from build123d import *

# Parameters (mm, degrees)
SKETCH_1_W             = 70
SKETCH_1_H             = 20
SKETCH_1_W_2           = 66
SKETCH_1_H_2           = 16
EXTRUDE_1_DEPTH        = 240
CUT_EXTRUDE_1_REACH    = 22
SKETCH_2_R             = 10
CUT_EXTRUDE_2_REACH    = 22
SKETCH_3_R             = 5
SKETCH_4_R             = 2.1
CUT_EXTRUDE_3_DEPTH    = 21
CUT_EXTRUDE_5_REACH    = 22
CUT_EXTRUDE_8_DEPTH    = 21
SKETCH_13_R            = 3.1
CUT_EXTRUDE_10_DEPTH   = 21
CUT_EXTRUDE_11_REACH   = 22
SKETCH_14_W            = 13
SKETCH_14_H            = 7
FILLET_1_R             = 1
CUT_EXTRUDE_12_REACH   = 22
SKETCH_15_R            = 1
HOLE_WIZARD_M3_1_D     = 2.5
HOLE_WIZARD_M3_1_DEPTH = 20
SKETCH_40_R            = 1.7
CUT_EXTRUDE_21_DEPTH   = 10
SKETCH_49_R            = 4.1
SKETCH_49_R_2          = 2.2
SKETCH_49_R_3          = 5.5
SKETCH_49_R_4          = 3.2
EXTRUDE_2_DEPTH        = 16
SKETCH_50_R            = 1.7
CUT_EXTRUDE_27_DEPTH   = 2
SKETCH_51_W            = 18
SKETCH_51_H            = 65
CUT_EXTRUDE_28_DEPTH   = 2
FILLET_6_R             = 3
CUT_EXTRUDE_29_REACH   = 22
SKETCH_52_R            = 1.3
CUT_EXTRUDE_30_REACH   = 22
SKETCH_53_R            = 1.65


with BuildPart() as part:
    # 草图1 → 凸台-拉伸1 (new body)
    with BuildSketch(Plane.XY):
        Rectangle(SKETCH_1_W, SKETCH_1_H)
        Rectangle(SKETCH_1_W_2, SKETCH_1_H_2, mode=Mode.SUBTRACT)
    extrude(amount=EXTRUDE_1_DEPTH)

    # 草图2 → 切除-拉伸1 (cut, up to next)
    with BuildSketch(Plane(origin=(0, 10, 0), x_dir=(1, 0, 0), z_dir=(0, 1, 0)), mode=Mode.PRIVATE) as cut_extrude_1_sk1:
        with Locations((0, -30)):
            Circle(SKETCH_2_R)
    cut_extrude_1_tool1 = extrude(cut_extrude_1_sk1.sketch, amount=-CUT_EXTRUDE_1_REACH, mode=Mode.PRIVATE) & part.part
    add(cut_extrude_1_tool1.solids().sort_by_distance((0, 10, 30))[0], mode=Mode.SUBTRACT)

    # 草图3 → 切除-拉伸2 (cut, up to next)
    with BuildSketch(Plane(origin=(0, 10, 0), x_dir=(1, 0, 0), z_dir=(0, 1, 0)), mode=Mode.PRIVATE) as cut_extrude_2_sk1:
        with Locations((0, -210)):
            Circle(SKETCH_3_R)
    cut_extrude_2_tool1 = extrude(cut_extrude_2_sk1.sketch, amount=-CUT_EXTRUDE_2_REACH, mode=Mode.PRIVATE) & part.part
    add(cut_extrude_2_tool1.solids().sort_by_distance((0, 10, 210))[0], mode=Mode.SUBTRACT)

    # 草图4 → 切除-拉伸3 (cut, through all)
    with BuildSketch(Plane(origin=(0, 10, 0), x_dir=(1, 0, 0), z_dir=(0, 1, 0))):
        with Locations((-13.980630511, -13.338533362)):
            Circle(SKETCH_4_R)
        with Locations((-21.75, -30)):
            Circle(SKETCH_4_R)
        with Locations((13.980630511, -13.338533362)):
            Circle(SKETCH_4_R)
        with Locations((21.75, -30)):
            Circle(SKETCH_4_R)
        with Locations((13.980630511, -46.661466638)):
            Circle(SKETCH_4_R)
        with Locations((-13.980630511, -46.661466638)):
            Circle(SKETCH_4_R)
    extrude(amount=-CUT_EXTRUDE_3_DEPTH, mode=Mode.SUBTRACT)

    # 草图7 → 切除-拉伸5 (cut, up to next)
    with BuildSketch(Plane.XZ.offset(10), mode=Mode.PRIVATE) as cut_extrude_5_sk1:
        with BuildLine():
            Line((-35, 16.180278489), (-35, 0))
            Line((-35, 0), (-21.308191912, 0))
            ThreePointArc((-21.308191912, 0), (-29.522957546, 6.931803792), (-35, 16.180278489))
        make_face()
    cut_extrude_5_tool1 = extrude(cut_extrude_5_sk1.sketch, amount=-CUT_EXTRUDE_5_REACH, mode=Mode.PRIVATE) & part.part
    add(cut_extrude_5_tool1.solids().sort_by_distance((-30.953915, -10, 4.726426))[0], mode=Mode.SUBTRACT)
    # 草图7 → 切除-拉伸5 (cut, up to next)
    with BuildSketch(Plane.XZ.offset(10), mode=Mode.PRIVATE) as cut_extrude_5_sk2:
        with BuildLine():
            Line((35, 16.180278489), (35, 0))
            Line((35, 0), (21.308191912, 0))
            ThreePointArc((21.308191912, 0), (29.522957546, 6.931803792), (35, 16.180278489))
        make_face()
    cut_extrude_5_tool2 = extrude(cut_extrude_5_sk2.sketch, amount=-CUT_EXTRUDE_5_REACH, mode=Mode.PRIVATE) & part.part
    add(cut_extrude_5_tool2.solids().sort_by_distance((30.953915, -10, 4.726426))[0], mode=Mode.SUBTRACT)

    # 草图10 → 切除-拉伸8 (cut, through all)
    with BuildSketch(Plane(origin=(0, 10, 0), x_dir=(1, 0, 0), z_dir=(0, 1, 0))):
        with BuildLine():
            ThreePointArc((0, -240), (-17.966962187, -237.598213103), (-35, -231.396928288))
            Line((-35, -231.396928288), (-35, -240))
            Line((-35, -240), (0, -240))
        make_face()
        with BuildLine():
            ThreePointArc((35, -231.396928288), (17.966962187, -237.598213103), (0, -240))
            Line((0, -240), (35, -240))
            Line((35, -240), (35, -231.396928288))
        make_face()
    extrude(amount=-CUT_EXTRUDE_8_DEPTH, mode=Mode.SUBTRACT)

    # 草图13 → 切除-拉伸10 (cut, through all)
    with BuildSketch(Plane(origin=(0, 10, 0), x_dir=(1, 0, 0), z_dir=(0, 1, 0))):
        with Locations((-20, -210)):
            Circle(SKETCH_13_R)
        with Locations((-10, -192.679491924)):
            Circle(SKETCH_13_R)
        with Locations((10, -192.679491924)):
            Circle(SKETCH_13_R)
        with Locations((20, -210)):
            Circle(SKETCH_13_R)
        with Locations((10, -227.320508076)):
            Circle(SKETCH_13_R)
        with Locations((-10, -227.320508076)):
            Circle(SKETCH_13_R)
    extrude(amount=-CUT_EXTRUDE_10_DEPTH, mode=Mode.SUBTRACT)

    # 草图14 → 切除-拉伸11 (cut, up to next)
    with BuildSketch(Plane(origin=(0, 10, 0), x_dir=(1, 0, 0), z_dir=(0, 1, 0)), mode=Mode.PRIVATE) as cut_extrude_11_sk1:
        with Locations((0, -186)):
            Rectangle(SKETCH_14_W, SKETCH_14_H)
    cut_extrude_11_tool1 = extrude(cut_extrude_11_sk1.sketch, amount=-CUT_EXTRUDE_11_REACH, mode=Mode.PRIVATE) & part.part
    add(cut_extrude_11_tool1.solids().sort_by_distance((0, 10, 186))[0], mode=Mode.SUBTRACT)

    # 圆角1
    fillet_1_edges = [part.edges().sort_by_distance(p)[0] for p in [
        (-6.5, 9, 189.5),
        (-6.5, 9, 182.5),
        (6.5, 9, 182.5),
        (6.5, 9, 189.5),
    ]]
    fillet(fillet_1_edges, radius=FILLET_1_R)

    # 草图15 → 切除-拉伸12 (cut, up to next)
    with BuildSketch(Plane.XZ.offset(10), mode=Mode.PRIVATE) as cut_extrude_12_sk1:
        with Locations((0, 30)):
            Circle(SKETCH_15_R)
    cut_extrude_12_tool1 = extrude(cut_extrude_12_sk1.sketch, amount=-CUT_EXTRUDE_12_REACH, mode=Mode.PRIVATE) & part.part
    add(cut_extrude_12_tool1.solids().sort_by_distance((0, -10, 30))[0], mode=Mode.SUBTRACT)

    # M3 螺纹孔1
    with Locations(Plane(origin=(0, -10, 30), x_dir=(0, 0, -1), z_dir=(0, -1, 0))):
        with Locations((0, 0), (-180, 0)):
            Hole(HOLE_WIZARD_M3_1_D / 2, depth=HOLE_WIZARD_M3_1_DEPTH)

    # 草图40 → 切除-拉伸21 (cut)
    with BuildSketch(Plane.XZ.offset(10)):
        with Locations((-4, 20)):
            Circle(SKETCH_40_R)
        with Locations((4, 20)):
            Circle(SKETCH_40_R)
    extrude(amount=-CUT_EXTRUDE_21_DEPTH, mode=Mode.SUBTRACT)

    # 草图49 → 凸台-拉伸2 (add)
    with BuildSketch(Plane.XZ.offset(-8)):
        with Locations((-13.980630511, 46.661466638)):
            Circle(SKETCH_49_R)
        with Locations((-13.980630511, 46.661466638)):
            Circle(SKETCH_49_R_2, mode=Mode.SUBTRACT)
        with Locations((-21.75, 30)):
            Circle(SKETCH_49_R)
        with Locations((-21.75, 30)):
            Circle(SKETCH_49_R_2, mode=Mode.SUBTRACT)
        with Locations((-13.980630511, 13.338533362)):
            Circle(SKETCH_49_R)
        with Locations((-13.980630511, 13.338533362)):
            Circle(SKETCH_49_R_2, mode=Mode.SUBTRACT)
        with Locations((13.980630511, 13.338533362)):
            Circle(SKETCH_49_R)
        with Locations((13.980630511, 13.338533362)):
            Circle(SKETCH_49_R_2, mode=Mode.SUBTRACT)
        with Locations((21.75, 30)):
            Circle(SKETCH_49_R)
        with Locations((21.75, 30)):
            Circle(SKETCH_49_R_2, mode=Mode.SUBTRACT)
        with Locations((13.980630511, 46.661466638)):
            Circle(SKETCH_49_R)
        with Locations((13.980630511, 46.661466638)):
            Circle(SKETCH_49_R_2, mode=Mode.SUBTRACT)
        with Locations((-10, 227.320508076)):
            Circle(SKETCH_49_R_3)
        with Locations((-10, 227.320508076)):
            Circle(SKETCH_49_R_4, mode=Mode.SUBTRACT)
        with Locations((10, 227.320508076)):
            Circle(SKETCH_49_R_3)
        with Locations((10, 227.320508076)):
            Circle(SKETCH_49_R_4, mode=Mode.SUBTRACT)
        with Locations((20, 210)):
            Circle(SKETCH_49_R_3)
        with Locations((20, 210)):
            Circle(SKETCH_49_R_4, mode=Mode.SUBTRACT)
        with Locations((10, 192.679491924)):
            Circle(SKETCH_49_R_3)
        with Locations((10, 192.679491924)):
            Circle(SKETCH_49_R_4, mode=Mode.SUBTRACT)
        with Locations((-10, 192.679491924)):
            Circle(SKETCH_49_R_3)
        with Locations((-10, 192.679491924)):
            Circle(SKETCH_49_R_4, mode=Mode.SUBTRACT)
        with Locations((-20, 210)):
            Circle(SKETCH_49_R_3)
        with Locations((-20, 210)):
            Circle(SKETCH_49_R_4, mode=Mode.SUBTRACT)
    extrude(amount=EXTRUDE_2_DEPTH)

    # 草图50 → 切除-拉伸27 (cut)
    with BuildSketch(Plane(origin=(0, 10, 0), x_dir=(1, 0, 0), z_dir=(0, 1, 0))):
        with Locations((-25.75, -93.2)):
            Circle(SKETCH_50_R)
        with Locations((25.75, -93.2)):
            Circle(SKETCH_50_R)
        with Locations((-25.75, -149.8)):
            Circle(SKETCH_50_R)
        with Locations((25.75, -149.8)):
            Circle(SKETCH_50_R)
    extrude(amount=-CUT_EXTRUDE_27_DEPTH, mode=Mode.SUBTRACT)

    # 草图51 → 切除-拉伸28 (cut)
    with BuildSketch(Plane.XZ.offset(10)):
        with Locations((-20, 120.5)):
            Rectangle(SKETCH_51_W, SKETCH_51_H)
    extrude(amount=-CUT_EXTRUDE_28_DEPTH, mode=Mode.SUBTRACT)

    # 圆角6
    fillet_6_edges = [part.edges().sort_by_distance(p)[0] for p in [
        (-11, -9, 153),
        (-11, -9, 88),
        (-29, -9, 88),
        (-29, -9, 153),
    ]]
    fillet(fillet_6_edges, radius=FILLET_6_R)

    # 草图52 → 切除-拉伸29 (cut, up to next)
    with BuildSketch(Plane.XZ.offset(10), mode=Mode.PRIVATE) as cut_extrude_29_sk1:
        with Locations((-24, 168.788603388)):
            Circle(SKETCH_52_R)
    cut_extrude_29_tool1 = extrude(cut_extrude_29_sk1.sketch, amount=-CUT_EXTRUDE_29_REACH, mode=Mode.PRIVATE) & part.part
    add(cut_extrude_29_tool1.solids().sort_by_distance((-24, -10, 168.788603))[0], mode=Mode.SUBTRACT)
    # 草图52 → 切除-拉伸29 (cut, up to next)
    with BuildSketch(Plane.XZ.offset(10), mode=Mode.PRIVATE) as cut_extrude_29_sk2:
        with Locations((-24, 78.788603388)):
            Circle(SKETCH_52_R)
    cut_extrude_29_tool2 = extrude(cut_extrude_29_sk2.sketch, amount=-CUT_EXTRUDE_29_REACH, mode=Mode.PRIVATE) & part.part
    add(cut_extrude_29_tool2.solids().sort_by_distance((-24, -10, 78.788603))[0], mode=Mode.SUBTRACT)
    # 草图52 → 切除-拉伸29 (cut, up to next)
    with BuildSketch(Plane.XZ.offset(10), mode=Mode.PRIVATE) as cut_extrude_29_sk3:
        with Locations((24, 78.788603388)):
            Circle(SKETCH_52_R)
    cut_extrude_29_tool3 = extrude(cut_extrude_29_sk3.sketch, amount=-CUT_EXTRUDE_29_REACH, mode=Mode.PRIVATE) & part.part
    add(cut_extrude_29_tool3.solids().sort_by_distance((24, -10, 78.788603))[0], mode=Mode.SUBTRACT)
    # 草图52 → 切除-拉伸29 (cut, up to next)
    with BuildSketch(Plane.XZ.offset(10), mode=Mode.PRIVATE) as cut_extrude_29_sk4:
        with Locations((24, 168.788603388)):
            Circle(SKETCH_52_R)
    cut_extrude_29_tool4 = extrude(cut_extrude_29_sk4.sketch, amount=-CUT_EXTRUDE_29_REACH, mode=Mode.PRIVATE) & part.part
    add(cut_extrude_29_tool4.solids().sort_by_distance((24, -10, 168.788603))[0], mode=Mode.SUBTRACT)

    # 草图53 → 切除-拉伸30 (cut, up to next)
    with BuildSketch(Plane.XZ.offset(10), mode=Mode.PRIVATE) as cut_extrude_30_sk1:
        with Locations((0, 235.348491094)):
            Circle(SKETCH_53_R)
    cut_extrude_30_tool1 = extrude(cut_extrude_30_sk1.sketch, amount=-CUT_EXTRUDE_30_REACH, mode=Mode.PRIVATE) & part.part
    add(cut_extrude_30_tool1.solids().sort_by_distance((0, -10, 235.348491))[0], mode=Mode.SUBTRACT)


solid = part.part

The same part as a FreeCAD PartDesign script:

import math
import FreeCAD as App
import Part
import Sketcher
from FreeCAD import Vector
Q = App.Units.Quantity


def edges_at(feature, points):
    """Names of the edges that pass closest to the given points."""
    edges = feature.Shape.Edges
    near = lambda p: min(range(len(edges)), key=lambda i: edges[i].distToShape(Part.Vertex(*p))[0])
    return sorted({f"Edge{near(p) + 1}" for p in points})

doc = App.newDocument("Part")
body = doc.addObject("PartDesign::Body", "Body")

# Sketch on XY plane
sketch1 = body.newObject("Sketcher::SketchObject", "Sketch")
sketch1.AttachmentSupport = (doc.getObject("XY_Plane"), [""])
sketch1.MapMode = "FlatFace"
sketch1.addGeometry(Part.LineSegment(Vector(-35, 10, 0), Vector(-35, -10, 0)), False)
sketch1.addGeometry(Part.LineSegment(Vector(-35, -10, 0), Vector(35, -10, 0)), False)
sketch1.addGeometry(Part.LineSegment(Vector(35, -10, 0), Vector(35, 10, 0)), False)
sketch1.addGeometry(Part.LineSegment(Vector(35, 10, 0), Vector(-35, 10, 0)), False)
sketch1.addGeometry(Part.LineSegment(Vector(33, -8, 0), Vector(-33, -8, 0)), False)
sketch1.addGeometry(Part.LineSegment(Vector(-33, -8, 0), Vector(-33, 8, 0)), False)
sketch1.addGeometry(Part.LineSegment(Vector(-33, 8, 0), Vector(33, 8, 0)), False)
sketch1.addGeometry(Part.LineSegment(Vector(33, 8, 0), Vector(33, -8, 0)), False)
sketch1.addConstraint(Sketcher.Constraint("Coincident", 0, 2, 1, 1))
sketch1.addConstraint(Sketcher.Constraint("Coincident", 1, 2, 2, 1))
sketch1.addConstraint(Sketcher.Constraint("Coincident", 2, 2, 3, 1))
sketch1.addConstraint(Sketcher.Constraint("Coincident", 3, 2, 0, 1))
sketch1.addConstraint(Sketcher.Constraint("Coincident", 4, 2, 5, 1))
sketch1.addConstraint(Sketcher.Constraint("Coincident", 5, 2, 6, 1))
sketch1.addConstraint(Sketcher.Constraint("Coincident", 6, 2, 7, 1))
sketch1.addConstraint(Sketcher.Constraint("Coincident", 7, 2, 4, 1))
sketch1.addConstraint(Sketcher.Constraint("Vertical", 0))
sketch1.addConstraint(Sketcher.Constraint("Horizontal", 1))
sketch1.addConstraint(Sketcher.Constraint("Vertical", 2))
sketch1.addConstraint(Sketcher.Constraint("Horizontal", 3))
sketch1.addConstraint(Sketcher.Constraint("Horizontal", 4))
sketch1.addConstraint(Sketcher.Constraint("Vertical", 5))
sketch1.addConstraint(Sketcher.Constraint("Horizontal", 6))
sketch1.addConstraint(Sketcher.Constraint("Vertical", 7))
sketch1.addConstraint(Sketcher.Constraint("Symmetric", 0, 2, 2, 2, -1, 1))
sketch1.addConstraint(Sketcher.Constraint("Symmetric", 4, 2, 6, 2, -1, 1))
sketch1.addConstraint(Sketcher.Constraint("DistanceX", 1, 1, 1, 2, Q("70 mm")))
sketch1.addConstraint(Sketcher.Constraint("DistanceX", 4, 2, 4, 1, Q("66 mm")))
sketch1.addConstraint(Sketcher.Constraint("DistanceY", 0, 2, 0, 1, Q("20 mm")))
sketch1.addConstraint(Sketcher.Constraint("DistanceY", 5, 1, 5, 2, Q("16 mm")))
pad1 = body.newObject("PartDesign::Pad", "Pad")
pad1.Profile = sketch1
pad1.Length = 240

# Sketch on XZ plane
sketch2 = body.newObject("Sketcher::SketchObject", "Sketch001")
sketch2.AttachmentSupport = (doc.getObject("XZ_Plane"), [""])
sketch2.MapMode = "FlatFace"
sketch2.AttachmentOffset = App.Placement(Vector(0, 0, -10), App.Rotation())
sketch2.addGeometry(Part.Circle(Vector(0, 30, 0), Vector(0, 0, 1), 10), False)
sketch2.addConstraint(Sketcher.Constraint("PointOnObject", 0, 3, -2))
sketch2.addConstraint(Sketcher.Constraint("Diameter", 0, Q("20 mm")))
sketch2.addConstraint(Sketcher.Constraint("DistanceY", -1, 1, 0, 3, Q("30 mm")))
pocket1 = body.newObject("PartDesign::Pocket", "Pocket")
pocket1.Profile = sketch2
pocket1.Type = "UpToFirst"
pocket1.Reversed = True

# Sketch on XZ plane
sketch3 = body.newObject("Sketcher::SketchObject", "Sketch002")
sketch3.AttachmentSupport = (doc.getObject("XZ_Plane"), [""])
sketch3.MapMode = "FlatFace"
sketch3.AttachmentOffset = App.Placement(Vector(0, 0, -10), App.Rotation())
sketch3.addGeometry(Part.Circle(Vector(0, 210, 0), Vector(0, 0, 1), 5), False)
sketch3.addConstraint(Sketcher.Constraint("PointOnObject", 0, 3, -2))
sketch3.addConstraint(Sketcher.Constraint("Diameter", 0, Q("10 mm")))
sketch3.addConstraint(Sketcher.Constraint("DistanceY", -1, 1, 0, 3, Q("210 mm")))
pocket2 = body.newObject("PartDesign::Pocket", "Pocket001")
pocket2.Profile = sketch3
pocket2.Type = "UpToFirst"
pocket2.Reversed = True

# Sketch on XZ plane
sketch4 = body.newObject("Sketcher::SketchObject", "Sketch003")
sketch4.AttachmentSupport = (doc.getObject("XZ_Plane"), [""])
sketch4.MapMode = "FlatFace"
sketch4.AttachmentOffset = App.Placement(Vector(0, 0, -10), App.Rotation())
sketch4.addGeometry(Part.Circle(Vector(-14, 13.3, 0), Vector(0, 0, 1), 2.1), False)
sketch4.addGeometry(Part.Circle(Vector(-21.8, 30, 0), Vector(0, 0, 1), 2.1), False)
sketch4.addGeometry(Part.Circle(Vector(14, 13.3, 0), Vector(0, 0, 1), 2.1), False)
sketch4.addGeometry(Part.Circle(Vector(21.8, 30, 0), Vector(0, 0, 1), 2.1), False)
sketch4.addGeometry(Part.Circle(Vector(14, 46.7, 0), Vector(0, 0, 1), 2.1), False)
sketch4.addGeometry(Part.Circle(Vector(-14, 46.7, 0), Vector(0, 0, 1), 2.1), False)
sketch4.addConstraint(Sketcher.Constraint("Equal", 0, 1))
sketch4.addConstraint(Sketcher.Constraint("Equal", 1, 2))
sketch4.addConstraint(Sketcher.Constraint("Equal", 2, 3))
sketch4.addConstraint(Sketcher.Constraint("Equal", 3, 4))
sketch4.addConstraint(Sketcher.Constraint("Equal", 4, 5))
sketch4.addConstraint(Sketcher.Constraint("Symmetric", 0, 3, 2, 3, -2))
sketch4.addConstraint(Sketcher.Constraint("Symmetric", 1, 3, 3, 3, -2))
sketch4.addConstraint(Sketcher.Constraint("Symmetric", 4, 3, 5, 3, -2))
sketch4.addConstraint(Sketcher.Constraint("Vertical", 2, 3, 4, 3))
sketch4.addConstraint(Sketcher.Constraint("Diameter", 0, Q("4.2 mm")))
sketch4.addConstraint(Sketcher.Constraint("DistanceY", -1, 1, 1, 3, Q("30 mm")))
sketch4.addConstraint(Sketcher.Constraint("DistanceX", 1, 3, 3, 3, Q("43.5 mm")))
sketch4.addConstraint(Sketcher.Constraint("DistanceX", 0, 3, -1, 1, Q("13.980631 mm")))
sketch4.addConstraint(Sketcher.Constraint("DistanceY", -1, 1, 0, 3, Q("13.338533 mm")))
sketch4.addConstraint(Sketcher.Constraint("DistanceY", -1, 1, 4, 3, Q("46.661467 mm")))
pocket3 = body.newObject("PartDesign::Pocket", "Pocket002")
pocket3.Profile = sketch4
pocket3.Type = "ThroughAll"
pocket3.Reversed = True

# Sketch on XZ plane
sketch5 = body.newObject("Sketcher::SketchObject", "Sketch004")
sketch5.AttachmentSupport = (doc.getObject("XZ_Plane"), [""])
sketch5.MapMode = "FlatFace"
sketch5.AttachmentOffset = App.Placement(Vector(0, 0, 10), App.Rotation())
sketch5.addGeometry(Part.LineSegment(Vector(-35, 16, 0), Vector(-35, 0, 0)), False)
sketch5.addGeometry(Part.LineSegment(Vector(-35, 0, 0), Vector(-21, 0, 0)), False)
sketch5.addGeometry(Part.ArcOfCircle(Part.Circle(Vector(-5, 28, 0), Vector(0, 0, 1), 32), math.radians(-159), math.radians(-121)), False)
sketch5.addConstraint(Sketcher.Constraint("Coincident", 0, 2, 1, 1))
sketch5.addConstraint(Sketcher.Constraint("Coincident", 1, 2, 2, 2))
sketch5.addConstraint(Sketcher.Constraint("Coincident", 2, 1, 0, 1))
sketch5.addConstraint(Sketcher.Constraint("Vertical", 0))
sketch5.addConstraint(Sketcher.Constraint("Horizontal", 1))
sketch5.addConstraint(Sketcher.Constraint("PointOnObject", 0, 2, -1))
sketch5.addConstraint(Sketcher.Constraint("DistanceX", 0, 2, -1, 1, Q("35 mm")))
sketch5.addConstraint(Sketcher.Constraint("Radius", 2, Q("32.214213 mm")))
sketch5.addConstraint(Sketcher.Constraint("DistanceX", 1, 1, 1, 2, Q("13.691808 mm")))
sketch5.addConstraint(Sketcher.Constraint("DistanceY", 0, 2, 0, 1, Q("16.180278 mm")))
pocket4 = body.newObject("PartDesign::Pocket", "Pocket003")
pocket4.Profile = sketch5
pocket4.Length = 20

# Sketch on XZ plane
sketch6 = body.newObject("Sketcher::SketchObject", "Sketch005")
sketch6.AttachmentSupport = (doc.getObject("XZ_Plane"), [""])
sketch6.MapMode = "FlatFace"
sketch6.AttachmentOffset = App.Placement(Vector(0, 0, 10), App.Rotation())
sketch6.addGeometry(Part.LineSegment(Vector(35, 0, 0), Vector(35, 16, 0)), False)
sketch6.addGeometry(Part.ArcOfCircle(Part.Circle(Vector(5, 28, 0), Vector(0, 0, 1), 32), math.radians(-59), math.radians(-21)), False)
sketch6.addGeometry(Part.LineSegment(Vector(21, 0, 0), Vector(35, 0, 0)), False)
sketch6.addConstraint(Sketcher.Constraint("Coincident", 0, 2, 1, 2))
sketch6.addConstraint(Sketcher.Constraint("Coincident", 1, 1, 2, 1))
sketch6.addConstraint(Sketcher.Constraint("Coincident", 2, 2, 0, 1))
sketch6.addConstraint(Sketcher.Constraint("Vertical", 0))
sketch6.addConstraint(Sketcher.Constraint("Horizontal", 2))
sketch6.addConstraint(Sketcher.Constraint("PointOnObject", 1, 1, -1))
sketch6.addConstraint(Sketcher.Constraint("DistanceX", -1, 1, 0, 2, Q("35 mm")))
sketch6.addConstraint(Sketcher.Constraint("Radius", 1, Q("32.214213 mm")))
sketch6.addConstraint(Sketcher.Constraint("DistanceX", 2, 1, 2, 2, Q("13.691808 mm")))
sketch6.addConstraint(Sketcher.Constraint("DistanceY", 0, 1, 0, 2, Q("16.180278 mm")))
pocket5 = body.newObject("PartDesign::Pocket", "Pocket004")
pocket5.Profile = sketch6
pocket5.Length = 20

# Sketch on XZ plane
sketch7 = body.newObject("Sketcher::SketchObject", "Sketch006")
sketch7.AttachmentSupport = (doc.getObject("XZ_Plane"), [""])
sketch7.MapMode = "FlatFace"
sketch7.AttachmentOffset = App.Placement(Vector(0, 0, -10), App.Rotation())
sketch7.addGeometry(Part.ArcOfCircle(Part.Circle(Vector(2, 156, 0), Vector(0, 0, 1), 84), math.radians(91), math.radians(116)), False)
sketch7.addGeometry(Part.LineSegment(Vector(-35, 231, 0), Vector(-35, 240, 0)), False)
sketch7.addGeometry(Part.LineSegment(Vector(-35, 240, 0), Vector(0, 240, 0)), False)
sketch7.addGeometry(Part.ArcOfCircle(Part.Circle(Vector(-2, 156, 0), Vector(0, 0, 1), 84), math.radians(64), math.radians(89)), False)
sketch7.addGeometry(Part.LineSegment(Vector(0, 240, 0), Vector(35, 240, 0)), False)
sketch7.addGeometry(Part.LineSegment(Vector(35, 240, 0), Vector(35, 231, 0)), False)
sketch7.addConstraint(Sketcher.Constraint("Coincident", 0, 2, 1, 1))
sketch7.addConstraint(Sketcher.Constraint("Coincident", 1, 2, 2, 1))
sketch7.addConstraint(Sketcher.Constraint("Coincident", 2, 2, 0, 1))
sketch7.addConstraint(Sketcher.Constraint("Coincident", 3, 2, 4, 1))
sketch7.addConstraint(Sketcher.Constraint("Coincident", 4, 2, 5, 1))
sketch7.addConstraint(Sketcher.Constraint("Coincident", 5, 2, 3, 1))
sketch7.addConstraint(Sketcher.Constraint("Vertical", 1))
sketch7.addConstraint(Sketcher.Constraint("Horizontal", 2))
sketch7.addConstraint(Sketcher.Constraint("Horizontal", 4))
sketch7.addConstraint(Sketcher.Constraint("Vertical", 5))
sketch7.addConstraint(Sketcher.Constraint("Coincident", 3, 2, 2, 2))
sketch7.addConstraint(Sketcher.Constraint("Equal", 0, 3))
sketch7.addConstraint(Sketcher.Constraint("Symmetric", 0, 3, 3, 3, -2))
sketch7.addConstraint(Sketcher.Constraint("Horizontal", 0, 2, 5, 2))
sketch7.addConstraint(Sketcher.Constraint("DistanceX", 2, 1, 2, 2, Q("35 mm")))
sketch7.addConstraint(Sketcher.Constraint("DistanceY", -1, 1, 1, 2, Q("240 mm")))
sketch7.addConstraint(Sketcher.Constraint("Radius", 0, Q("83.98015 mm")))
sketch7.addConstraint(Sketcher.Constraint("DistanceY", 1, 1, 1, 2, Q("8.603072 mm")))
pocket6 = body.newObject("PartDesign::Pocket", "Pocket005")
pocket6.Profile = sketch7
pocket6.Type = "ThroughAll"
pocket6.Reversed = True

# Sketch on XZ plane
sketch8 = body.newObject("Sketcher::SketchObject", "Sketch007")
sketch8.AttachmentSupport = (doc.getObject("XZ_Plane"), [""])
sketch8.MapMode = "FlatFace"
sketch8.AttachmentOffset = App.Placement(Vector(0, 0, -10), App.Rotation())
sketch8.addGeometry(Part.Circle(Vector(-20, 210, 0), Vector(0, 0, 1), 3.1), False)
sketch8.addGeometry(Part.Circle(Vector(-10, 192.7, 0), Vector(0, 0, 1), 3.1), False)
sketch8.addGeometry(Part.Circle(Vector(10, 192.7, 0), Vector(0, 0, 1), 3.1), False)
sketch8.addGeometry(Part.Circle(Vector(20, 210, 0), Vector(0, 0, 1), 3.1), False)
sketch8.addGeometry(Part.Circle(Vector(10, 227.3, 0), Vector(0, 0, 1), 3.1), False)
sketch8.addGeometry(Part.Circle(Vector(-10, 227.3, 0), Vector(0, 0, 1), 3.1), False)
sketch8.addConstraint(Sketcher.Constraint("Equal", 0, 1))
sketch8.addConstraint(Sketcher.Constraint("Equal", 1, 2))
sketch8.addConstraint(Sketcher.Constraint("Equal", 2, 3))
sketch8.addConstraint(Sketcher.Constraint("Equal", 3, 4))
sketch8.addConstraint(Sketcher.Constraint("Equal", 4, 5))
sketch8.addConstraint(Sketcher.Constraint("Symmetric", 1, 3, 2, 3, -2))
sketch8.addConstraint(Sketcher.Constraint("Symmetric", 0, 3, 3, 3, -2))
sketch8.addConstraint(Sketcher.Constraint("Symmetric", 4, 3, 5, 3, -2))
sketch8.addConstraint(Sketcher.Constraint("Vertical", 2, 3, 4, 3))
sketch8.addConstraint(Sketcher.Constraint("Diameter", 0, Q("6.2 mm")))
sketch8.addConstraint(Sketcher.Constraint("DistanceX", 0, 3, -1, 1, Q("20 mm")))
sketch8.addConstraint(Sketcher.Constraint("DistanceY", -1, 1, 0, 3, Q("210 mm")))
sketch8.addConstraint(Sketcher.Constraint("DistanceX", 1, 3, -1, 1, Q("10 mm")))
sketch8.addConstraint(Sketcher.Constraint("DistanceY", -1, 1, 1, 3, Q("192.679492 mm")))
sketch8.addConstraint(Sketcher.Constraint("DistanceY", -1, 1, 4, 3, Q("227.320508 mm")))
pocket7 = body.newObject("PartDesign::Pocket", "Pocket006")
pocket7.Profile = sketch8
pocket7.Type = "ThroughAll"
pocket7.Reversed = True

# Sketch on XZ plane
sketch9 = body.newObject("Sketcher::SketchObject", "Sketch008")
sketch9.AttachmentSupport = (doc.getObject("XZ_Plane"), [""])
sketch9.MapMode = "FlatFace"
sketch9.AttachmentOffset = App.Placement(Vector(0, 0, -10), App.Rotation())
sketch9.addGeometry(Part.LineSegment(Vector(-6, 182, 0), Vector(-6, 190, 0)), False)
sketch9.addGeometry(Part.LineSegment(Vector(-6, 190, 0), Vector(6, 190, 0)), False)
sketch9.addGeometry(Part.LineSegment(Vector(6, 190, 0), Vector(6, 182, 0)), False)
sketch9.addGeometry(Part.LineSegment(Vector(6, 182, 0), Vector(-6, 182, 0)), False)
sketch9.addConstraint(Sketcher.Constraint("Coincident", 0, 2, 1, 1))
sketch9.addConstraint(Sketcher.Constraint("Coincident", 1, 2, 2, 1))
sketch9.addConstraint(Sketcher.Constraint("Coincident", 2, 2, 3, 1))
sketch9.addConstraint(Sketcher.Constraint("Coincident", 3, 2, 0, 1))
sketch9.addConstraint(Sketcher.Constraint("Vertical", 0))
sketch9.addConstraint(Sketcher.Constraint("Horizontal", 1))
sketch9.addConstraint(Sketcher.Constraint("Vertical", 2))
sketch9.addConstraint(Sketcher.Constraint("Horizontal", 3))
sketch9.addConstraint(Sketcher.Constraint("DistanceX", 1, 1, 1, 2, Q("13 mm")))
sketch9.addConstraint(Sketcher.Constraint("DistanceY", 0, 1, 0, 2, Q("7 mm")))
sketch9.addConstraint(Sketcher.Constraint("DistanceX", 0, 2, -1, 1, Q("6.5 mm")))
sketch9.addConstraint(Sketcher.Constraint("DistanceY", -1, 1, 0, 2, Q("189.5 mm")))
pocket8 = body.newObject("PartDesign::Pocket", "Pocket007")
pocket8.Profile = sketch9
pocket8.Type = "UpToFirst"
pocket8.Reversed = True
doc.recompute()

fillet = body.newObject("PartDesign::Fillet", "Fillet")
fillet.Base = (pocket8, edges_at(pocket8, [
    (-6.5, 9, 189.5),
    (-6.5, 9, 182.5),
    (6.5, 9, 182.5),
    (6.5, 9, 189.5),
]))
fillet.Radius = 1

# Sketch on XZ plane
sketch10 = body.newObject("Sketcher::SketchObject", "Sketch009")
sketch10.AttachmentSupport = (doc.getObject("XZ_Plane"), [""])
sketch10.MapMode = "FlatFace"
sketch10.AttachmentOffset = App.Placement(Vector(0, 0, 10), App.Rotation())
sketch10.addGeometry(Part.Circle(Vector(0, 30, 0), Vector(0, 0, 1), 1), False)
sketch10.addConstraint(Sketcher.Constraint("PointOnObject", 0, 3, -2))
sketch10.addConstraint(Sketcher.Constraint("Diameter", 0, Q("2 mm")))
sketch10.addConstraint(Sketcher.Constraint("DistanceY", -1, 1, 0, 3, Q("30 mm")))
pocket9 = body.newObject("PartDesign::Pocket", "Pocket008")
pocket9.Profile = sketch10
pocket9.Type = "UpToFirst"

# Sketch on XZ plane
sketch11 = body.newObject("Sketcher::SketchObject", "Sketch010")
sketch11.AttachmentSupport = (doc.getObject("XZ_Plane"), [""])
sketch11.MapMode = "FlatFace"
sketch11.AttachmentOffset = App.Placement(Vector(0, 0, 10), App.Rotation())
sketch11.addGeometry(Part.Circle(Vector(0, 30, 0), Vector(0, 0, 1), 1.2), False)
sketch11.addGeometry(Part.Circle(Vector(0, 210, 0), Vector(0, 0, 1), 1.2), False)
sketch11.addConstraint(Sketcher.Constraint("Equal", 0, 1))
sketch11.addConstraint(Sketcher.Constraint("PointOnObject", 0, 3, -2))
sketch11.addConstraint(Sketcher.Constraint("PointOnObject", 1, 3, -2))
sketch11.addConstraint(Sketcher.Constraint("Diameter", 0, Q("2.5 mm")))
sketch11.addConstraint(Sketcher.Constraint("DistanceY", -1, 1, 0, 3, Q("30 mm")))
sketch11.addConstraint(Sketcher.Constraint("DistanceY", -1, 1, 1, 3, Q("210 mm")))
doc.recompute()
hole = body.newObject("PartDesign::Hole", "Hole")
hole.Profile = sketch11
hole.ThreadType = "None"
hole.Diameter = 2.5
hole.DepthType = "Dimension"
hole.Depth = 20
hole.DrillPoint = "Flat"

# Sketch on XZ plane
sketch12 = body.newObject("Sketcher::SketchObject", "Sketch011")
sketch12.AttachmentSupport = (doc.getObject("XZ_Plane"), [""])
sketch12.MapMode = "FlatFace"
sketch12.AttachmentOffset = App.Placement(Vector(0, 0, 10), App.Rotation())
sketch12.addGeometry(Part.Circle(Vector(-4, 20, 0), Vector(0, 0, 1), 1.7), False)
sketch12.addGeometry(Part.Circle(Vector(4, 20, 0), Vector(0, 0, 1), 1.7), False)
sketch12.addConstraint(Sketcher.Constraint("Equal", 0, 1))
sketch12.addConstraint(Sketcher.Constraint("Symmetric", 0, 3, 1, 3, -2))
sketch12.addConstraint(Sketcher.Constraint("Diameter", 0, Q("3.4 mm")))
sketch12.addConstraint(Sketcher.Constraint("DistanceX", 0, 3, -1, 1, Q("4 mm")))
sketch12.addConstraint(Sketcher.Constraint("DistanceY", -1, 1, 0, 3, Q("20 mm")))
pocket10 = body.newObject("PartDesign::Pocket", "Pocket009")
pocket10.Profile = sketch12
pocket10.Length = 10

# Sketch on XZ plane
sketch13 = body.newObject("Sketcher::SketchObject", "Sketch012")
sketch13.AttachmentSupport = (doc.getObject("XZ_Plane"), [""])
sketch13.MapMode = "FlatFace"
sketch13.AttachmentOffset = App.Placement(Vector(0, 0, -8), App.Rotation())
sketch13.addGeometry(Part.Circle(Vector(-14, 46.7, 0), Vector(0, 0, 1), 4.1), False)
sketch13.addGeometry(Part.Circle(Vector(-14, 46.7, 0), Vector(0, 0, 1), 2.2), False)
sketch13.addGeometry(Part.Circle(Vector(-21.8, 30, 0), Vector(0, 0, 1), 4.1), False)
sketch13.addGeometry(Part.Circle(Vector(-21.8, 30, 0), Vector(0, 0, 1), 2.2), False)
sketch13.addGeometry(Part.Circle(Vector(-14, 13.3, 0), Vector(0, 0, 1), 4.1), False)
sketch13.addGeometry(Part.Circle(Vector(-14, 13.3, 0), Vector(0, 0, 1), 2.2), False)
sketch13.addGeometry(Part.Circle(Vector(14, 13.3, 0), Vector(0, 0, 1), 4.1), False)
sketch13.addGeometry(Part.Circle(Vector(14, 13.3, 0), Vector(0, 0, 1), 2.2), False)
sketch13.addGeometry(Part.Circle(Vector(21.8, 30, 0), Vector(0, 0, 1), 4.1), False)
sketch13.addGeometry(Part.Circle(Vector(21.8, 30, 0), Vector(0, 0, 1), 2.2), False)
sketch13.addGeometry(Part.Circle(Vector(14, 46.7, 0), Vector(0, 0, 1), 4.1), False)
sketch13.addGeometry(Part.Circle(Vector(14, 46.7, 0), Vector(0, 0, 1), 2.2), False)
sketch13.addGeometry(Part.Circle(Vector(-10, 227.3, 0), Vector(0, 0, 1), 5.5), False)
sketch13.addGeometry(Part.Circle(Vector(-10, 227.3, 0), Vector(0, 0, 1), 3.2), False)
sketch13.addGeometry(Part.Circle(Vector(10, 227.3, 0), Vector(0, 0, 1), 5.5), False)
sketch13.addGeometry(Part.Circle(Vector(10, 227.3, 0), Vector(0, 0, 1), 3.2), False)
sketch13.addGeometry(Part.Circle(Vector(20, 210, 0), Vector(0, 0, 1), 5.5), False)
sketch13.addGeometry(Part.Circle(Vector(20, 210, 0), Vector(0, 0, 1), 3.2), False)
sketch13.addGeometry(Part.Circle(Vector(10, 192.7, 0), Vector(0, 0, 1), 5.5), False)
sketch13.addGeometry(Part.Circle(Vector(10, 192.7, 0), Vector(0, 0, 1), 3.2), False)
sketch13.addGeometry(Part.Circle(Vector(-10, 192.7, 0), Vector(0, 0, 1), 5.5), False)
sketch13.addGeometry(Part.Circle(Vector(-10, 192.7, 0), Vector(0, 0, 1), 3.2), False)
sketch13.addGeometry(Part.Circle(Vector(-20, 210, 0), Vector(0, 0, 1), 5.5), False)
sketch13.addGeometry(Part.Circle(Vector(-20, 210, 0), Vector(0, 0, 1), 3.2), False)
sketch13.addConstraint(Sketcher.Constraint("Coincident", 1, 3, 0, 3))
sketch13.addConstraint(Sketcher.Constraint("Coincident", 3, 3, 2, 3))
sketch13.addConstraint(Sketcher.Constraint("Coincident", 5, 3, 4, 3))
sketch13.addConstraint(Sketcher.Constraint("Coincident", 7, 3, 6, 3))
sketch13.addConstraint(Sketcher.Constraint("Coincident", 9, 3, 8, 3))
sketch13.addConstraint(Sketcher.Constraint("Coincident", 11, 3, 10, 3))
sketch13.addConstraint(Sketcher.Constraint("Coincident", 13, 3, 12, 3))
sketch13.addConstraint(Sketcher.Constraint("Coincident", 15, 3, 14, 3))
sketch13.addConstraint(Sketcher.Constraint("Coincident", 17, 3, 16, 3))
sketch13.addConstraint(Sketcher.Constraint("Coincident", 19, 3, 18, 3))
sketch13.addConstraint(Sketcher.Constraint("Coincident", 21, 3, 20, 3))
sketch13.addConstraint(Sketcher.Constraint("Coincident", 23, 3, 22, 3))
sketch13.addConstraint(Sketcher.Constraint("Equal", 0, 2))
sketch13.addConstraint(Sketcher.Constraint("Equal", 1, 3))
sketch13.addConstraint(Sketcher.Constraint("Equal", 2, 4))
sketch13.addConstraint(Sketcher.Constraint("Equal", 3, 5))
sketch13.addConstraint(Sketcher.Constraint("Equal", 4, 6))
sketch13.addConstraint(Sketcher.Constraint("Equal", 5, 7))
sketch13.addConstraint(Sketcher.Constraint("Equal", 6, 8))
sketch13.addConstraint(Sketcher.Constraint("Equal", 7, 9))
sketch13.addConstraint(Sketcher.Constraint("Equal", 8, 10))
sketch13.addConstraint(Sketcher.Constraint("Equal", 9, 11))
sketch13.addConstraint(Sketcher.Constraint("Equal", 12, 14))
sketch13.addConstraint(Sketcher.Constraint("Equal", 13, 15))
sketch13.addConstraint(Sketcher.Constraint("Equal", 14, 16))
sketch13.addConstraint(Sketcher.Constraint("Equal", 15, 17))
sketch13.addConstraint(Sketcher.Constraint("Equal", 16, 18))
sketch13.addConstraint(Sketcher.Constraint("Equal", 17, 19))
sketch13.addConstraint(Sketcher.Constraint("Equal", 18, 20))
sketch13.addConstraint(Sketcher.Constraint("Equal", 19, 21))
sketch13.addConstraint(Sketcher.Constraint("Equal", 20, 22))
sketch13.addConstraint(Sketcher.Constraint("Equal", 21, 23))
sketch13.addConstraint(Sketcher.Constraint("Symmetric", 4, 3, 6, 3, -2))
sketch13.addConstraint(Sketcher.Constraint("Symmetric", 2, 3, 8, 3, -2))
sketch13.addConstraint(Sketcher.Constraint("Symmetric", 0, 3, 10, 3, -2))
sketch13.addConstraint(Sketcher.Constraint("Symmetric", 12, 3, 14, 3, -2))
sketch13.addConstraint(Sketcher.Constraint("Symmetric", 18, 3, 20, 3, -2))
sketch13.addConstraint(Sketcher.Constraint("Symmetric", 16, 3, 22, 3, -2))
sketch13.addConstraint(Sketcher.Constraint("Vertical", 1, 3, 4, 3))
sketch13.addConstraint(Sketcher.Constraint("Vertical", 15, 3, 18, 3))
sketch13.addConstraint(Sketcher.Constraint("Diameter", 12, Q("11 mm")))
sketch13.addConstraint(Sketcher.Constraint("Diameter", 0, Q("8.2 mm")))
sketch13.addConstraint(Sketcher.Constraint("Diameter", 1, Q("4.4 mm")))
sketch13.addConstraint(Sketcher.Constraint("Diameter", 13, Q("6.4 mm")))
sketch13.addConstraint(Sketcher.Constraint("DistanceY", -1, 1, 2, 3, Q("30 mm")))
sketch13.addConstraint(Sketcher.Constraint("DistanceX", 12, 3, -1, 1, Q("10 mm")))
sketch13.addConstraint(Sketcher.Constraint("DistanceX", -1, 1, 16, 3, Q("20 mm")))
sketch13.addConstraint(Sketcher.Constraint("DistanceY", -1, 1, 16, 3, Q("210 mm")))
sketch13.addConstraint(Sketcher.Constraint("DistanceX", 2, 3, -1, 1, Q("21.75 mm")))
sketch13.addConstraint(Sketcher.Constraint("DistanceX", 0, 3, -1, 1, Q("13.980631 mm")))
sketch13.addConstraint(Sketcher.Constraint("DistanceY", -1, 1, 12, 3, Q("227.320508 mm")))
sketch13.addConstraint(Sketcher.Constraint("DistanceY", -1, 1, 18, 3, Q("192.679492 mm")))
sketch13.addConstraint(Sketcher.Constraint("DistanceY", 0, 3, 12, 3, Q("180.659041 mm")))
sketch13.addConstraint(Sketcher.Constraint("DistanceY", -1, 1, 4, 3, Q("13.338533 mm")))
pad2 = body.newObject("PartDesign::Pad", "Pad001")
pad2.Profile = sketch13
pad2.Length = 16

# Sketch on XZ plane
sketch14 = body.newObject("Sketcher::SketchObject", "Sketch013")
sketch14.AttachmentSupport = (doc.getObject("XZ_Plane"), [""])
sketch14.MapMode = "FlatFace"
sketch14.AttachmentOffset = App.Placement(Vector(0, 0, -10), App.Rotation())
sketch14.addGeometry(Part.Circle(Vector(-25.8, 93.2, 0), Vector(0, 0, 1), 1.7), False)
sketch14.addGeometry(Part.Circle(Vector(25.8, 93.2, 0), Vector(0, 0, 1), 1.7), False)
sketch14.addGeometry(Part.Circle(Vector(-25.8, 149.8, 0), Vector(0, 0, 1), 1.7), False)
sketch14.addGeometry(Part.Circle(Vector(25.8, 149.8, 0), Vector(0, 0, 1), 1.7), False)
sketch14.addConstraint(Sketcher.Constraint("Equal", 0, 1))
sketch14.addConstraint(Sketcher.Constraint("Equal", 1, 2))
sketch14.addConstraint(Sketcher.Constraint("Equal", 2, 3))
sketch14.addConstraint(Sketcher.Constraint("Symmetric", 0, 3, 1, 3, -2))
sketch14.addConstraint(Sketcher.Constraint("Symmetric", 2, 3, 3, 3, -2))
sketch14.addConstraint(Sketcher.Constraint("Vertical", 0, 3, 2, 3))
sketch14.addConstraint(Sketcher.Constraint("Diameter", 0, Q("3.4 mm")))
sketch14.addConstraint(Sketcher.Constraint("DistanceY", -1, 1, 0, 3, Q("93.2 mm")))
sketch14.addConstraint(Sketcher.Constraint("DistanceY", -1, 1, 2, 3, Q("149.8 mm")))
sketch14.addConstraint(Sketcher.Constraint("DistanceX", 0, 3, 1, 3, Q("51.5 mm")))
pocket11 = body.newObject("PartDesign::Pocket", "Pocket010")
pocket11.Profile = sketch14
pocket11.Length = 2
pocket11.Reversed = True

# Sketch on XZ plane
sketch15 = body.newObject("Sketcher::SketchObject", "Sketch014")
sketch15.AttachmentSupport = (doc.getObject("XZ_Plane"), [""])
sketch15.MapMode = "FlatFace"
sketch15.AttachmentOffset = App.Placement(Vector(0, 0, 10), App.Rotation())
sketch15.addGeometry(Part.LineSegment(Vector(-29, 153, 0), Vector(-29, 88, 0)), False)
sketch15.addGeometry(Part.LineSegment(Vector(-29, 88, 0), Vector(-11, 88, 0)), False)
sketch15.addGeometry(Part.LineSegment(Vector(-11, 88, 0), Vector(-11, 153, 0)), False)
sketch15.addGeometry(Part.LineSegment(Vector(-11, 153, 0), Vector(-29, 153, 0)), False)
sketch15.addConstraint(Sketcher.Constraint("Coincident", 0, 2, 1, 1))
sketch15.addConstraint(Sketcher.Constraint("Coincident", 1, 2, 2, 1))
sketch15.addConstraint(Sketcher.Constraint("Coincident", 2, 2, 3, 1))
sketch15.addConstraint(Sketcher.Constraint("Coincident", 3, 2, 0, 1))
sketch15.addConstraint(Sketcher.Constraint("Vertical", 0))
sketch15.addConstraint(Sketcher.Constraint("Horizontal", 1))
sketch15.addConstraint(Sketcher.Constraint("Vertical", 2))
sketch15.addConstraint(Sketcher.Constraint("Horizontal", 3))
sketch15.addConstraint(Sketcher.Constraint("DistanceX", 1, 1, 1, 2, Q("18 mm")))
sketch15.addConstraint(Sketcher.Constraint("DistanceY", 0, 2, 0, 1, Q("65 mm")))
sketch15.addConstraint(Sketcher.Constraint("DistanceX", 0, 2, -1, 1, Q("29 mm")))
sketch15.addConstraint(Sketcher.Constraint("DistanceY", -1, 1, 0, 2, Q("88 mm")))
pocket12 = body.newObject("PartDesign::Pocket", "Pocket011")
pocket12.Profile = sketch15
pocket12.Length = 2
doc.recompute()

fillet2 = body.newObject("PartDesign::Fillet", "Fillet001")
fillet2.Base = (pocket12, edges_at(pocket12, [
    (-11, -9, 153),
    (-11, -9, 88),
    (-29, -9, 88),
    (-29, -9, 153),
]))
fillet2.Radius = 3

# Sketch on XZ plane
sketch16 = body.newObject("Sketcher::SketchObject", "Sketch015")
sketch16.AttachmentSupport = (doc.getObject("XZ_Plane"), [""])
sketch16.MapMode = "FlatFace"
sketch16.AttachmentOffset = App.Placement(Vector(0, 0, 10), App.Rotation())
sketch16.addGeometry(Part.Circle(Vector(-24, 168.8, 0), Vector(0, 0, 1), 1.3), False)
sketch16.addConstraint(Sketcher.Constraint("Diameter", 0, Q("2.6 mm")))
sketch16.addConstraint(Sketcher.Constraint("DistanceX", 0, 3, -1, 1, Q("24 mm")))
sketch16.addConstraint(Sketcher.Constraint("DistanceY", -1, 1, 0, 3, Q("168.788603 mm")))
pocket13 = body.newObject("PartDesign::Pocket", "Pocket012")
pocket13.Profile = sketch16
pocket13.Type = "UpToFirst"

# Sketch on XZ plane
sketch17 = body.newObject("Sketcher::SketchObject", "Sketch016")
sketch17.AttachmentSupport = (doc.getObject("XZ_Plane"), [""])
sketch17.MapMode = "FlatFace"
sketch17.AttachmentOffset = App.Placement(Vector(0, 0, 10), App.Rotation())
sketch17.addGeometry(Part.Circle(Vector(-24, 78.8, 0), Vector(0, 0, 1), 1.3), False)
sketch17.addConstraint(Sketcher.Constraint("Diameter", 0, Q("2.6 mm")))
sketch17.addConstraint(Sketcher.Constraint("DistanceX", 0, 3, -1, 1, Q("24 mm")))
sketch17.addConstraint(Sketcher.Constraint("DistanceY", -1, 1, 0, 3, Q("78.788603 mm")))
pocket14 = body.newObject("PartDesign::Pocket", "Pocket013")
pocket14.Profile = sketch17
pocket14.Type = "UpToFirst"

# Sketch on XZ plane
sketch18 = body.newObject("Sketcher::SketchObject", "Sketch017")
sketch18.AttachmentSupport = (doc.getObject("XZ_Plane"), [""])
sketch18.MapMode = "FlatFace"
sketch18.AttachmentOffset = App.Placement(Vector(0, 0, 10), App.Rotation())
sketch18.addGeometry(Part.Circle(Vector(24, 78.8, 0), Vector(0, 0, 1), 1.3), False)
sketch18.addConstraint(Sketcher.Constraint("Diameter", 0, Q("2.6 mm")))
sketch18.addConstraint(Sketcher.Constraint("DistanceX", -1, 1, 0, 3, Q("24 mm")))
sketch18.addConstraint(Sketcher.Constraint("DistanceY", -1, 1, 0, 3, Q("78.788603 mm")))
pocket15 = body.newObject("PartDesign::Pocket", "Pocket014")
pocket15.Profile = sketch18
pocket15.Type = "UpToFirst"

# Sketch on XZ plane
sketch19 = body.newObject("Sketcher::SketchObject", "Sketch018")
sketch19.AttachmentSupport = (doc.getObject("XZ_Plane"), [""])
sketch19.MapMode = "FlatFace"
sketch19.AttachmentOffset = App.Placement(Vector(0, 0, 10), App.Rotation())
sketch19.addGeometry(Part.Circle(Vector(24, 168.8, 0), Vector(0, 0, 1), 1.3), False)
sketch19.addConstraint(Sketcher.Constraint("Diameter", 0, Q("2.6 mm")))
sketch19.addConstraint(Sketcher.Constraint("DistanceX", -1, 1, 0, 3, Q("24 mm")))
sketch19.addConstraint(Sketcher.Constraint("DistanceY", -1, 1, 0, 3, Q("168.788603 mm")))
pocket16 = body.newObject("PartDesign::Pocket", "Pocket015")
pocket16.Profile = sketch19
pocket16.Type = "UpToFirst"

# Sketch on XZ plane
sketch20 = body.newObject("Sketcher::SketchObject", "Sketch019")
sketch20.AttachmentSupport = (doc.getObject("XZ_Plane"), [""])
sketch20.MapMode = "FlatFace"
sketch20.AttachmentOffset = App.Placement(Vector(0, 0, 10), App.Rotation())
sketch20.addGeometry(Part.Circle(Vector(0, 235.3, 0), Vector(0, 0, 1), 1.6), False)
sketch20.addConstraint(Sketcher.Constraint("PointOnObject", 0, 3, -2))
sketch20.addConstraint(Sketcher.Constraint("Diameter", 0, Q("3.3 mm")))
sketch20.addConstraint(Sketcher.Constraint("DistanceY", -1, 1, 0, 3, Q("235.348491 mm")))
pocket17 = body.newObject("PartDesign::Pocket", "Pocket016")
pocket17.Profile = sketch20
pocket17.Type = "UpToFirst"

doc.recompute()
